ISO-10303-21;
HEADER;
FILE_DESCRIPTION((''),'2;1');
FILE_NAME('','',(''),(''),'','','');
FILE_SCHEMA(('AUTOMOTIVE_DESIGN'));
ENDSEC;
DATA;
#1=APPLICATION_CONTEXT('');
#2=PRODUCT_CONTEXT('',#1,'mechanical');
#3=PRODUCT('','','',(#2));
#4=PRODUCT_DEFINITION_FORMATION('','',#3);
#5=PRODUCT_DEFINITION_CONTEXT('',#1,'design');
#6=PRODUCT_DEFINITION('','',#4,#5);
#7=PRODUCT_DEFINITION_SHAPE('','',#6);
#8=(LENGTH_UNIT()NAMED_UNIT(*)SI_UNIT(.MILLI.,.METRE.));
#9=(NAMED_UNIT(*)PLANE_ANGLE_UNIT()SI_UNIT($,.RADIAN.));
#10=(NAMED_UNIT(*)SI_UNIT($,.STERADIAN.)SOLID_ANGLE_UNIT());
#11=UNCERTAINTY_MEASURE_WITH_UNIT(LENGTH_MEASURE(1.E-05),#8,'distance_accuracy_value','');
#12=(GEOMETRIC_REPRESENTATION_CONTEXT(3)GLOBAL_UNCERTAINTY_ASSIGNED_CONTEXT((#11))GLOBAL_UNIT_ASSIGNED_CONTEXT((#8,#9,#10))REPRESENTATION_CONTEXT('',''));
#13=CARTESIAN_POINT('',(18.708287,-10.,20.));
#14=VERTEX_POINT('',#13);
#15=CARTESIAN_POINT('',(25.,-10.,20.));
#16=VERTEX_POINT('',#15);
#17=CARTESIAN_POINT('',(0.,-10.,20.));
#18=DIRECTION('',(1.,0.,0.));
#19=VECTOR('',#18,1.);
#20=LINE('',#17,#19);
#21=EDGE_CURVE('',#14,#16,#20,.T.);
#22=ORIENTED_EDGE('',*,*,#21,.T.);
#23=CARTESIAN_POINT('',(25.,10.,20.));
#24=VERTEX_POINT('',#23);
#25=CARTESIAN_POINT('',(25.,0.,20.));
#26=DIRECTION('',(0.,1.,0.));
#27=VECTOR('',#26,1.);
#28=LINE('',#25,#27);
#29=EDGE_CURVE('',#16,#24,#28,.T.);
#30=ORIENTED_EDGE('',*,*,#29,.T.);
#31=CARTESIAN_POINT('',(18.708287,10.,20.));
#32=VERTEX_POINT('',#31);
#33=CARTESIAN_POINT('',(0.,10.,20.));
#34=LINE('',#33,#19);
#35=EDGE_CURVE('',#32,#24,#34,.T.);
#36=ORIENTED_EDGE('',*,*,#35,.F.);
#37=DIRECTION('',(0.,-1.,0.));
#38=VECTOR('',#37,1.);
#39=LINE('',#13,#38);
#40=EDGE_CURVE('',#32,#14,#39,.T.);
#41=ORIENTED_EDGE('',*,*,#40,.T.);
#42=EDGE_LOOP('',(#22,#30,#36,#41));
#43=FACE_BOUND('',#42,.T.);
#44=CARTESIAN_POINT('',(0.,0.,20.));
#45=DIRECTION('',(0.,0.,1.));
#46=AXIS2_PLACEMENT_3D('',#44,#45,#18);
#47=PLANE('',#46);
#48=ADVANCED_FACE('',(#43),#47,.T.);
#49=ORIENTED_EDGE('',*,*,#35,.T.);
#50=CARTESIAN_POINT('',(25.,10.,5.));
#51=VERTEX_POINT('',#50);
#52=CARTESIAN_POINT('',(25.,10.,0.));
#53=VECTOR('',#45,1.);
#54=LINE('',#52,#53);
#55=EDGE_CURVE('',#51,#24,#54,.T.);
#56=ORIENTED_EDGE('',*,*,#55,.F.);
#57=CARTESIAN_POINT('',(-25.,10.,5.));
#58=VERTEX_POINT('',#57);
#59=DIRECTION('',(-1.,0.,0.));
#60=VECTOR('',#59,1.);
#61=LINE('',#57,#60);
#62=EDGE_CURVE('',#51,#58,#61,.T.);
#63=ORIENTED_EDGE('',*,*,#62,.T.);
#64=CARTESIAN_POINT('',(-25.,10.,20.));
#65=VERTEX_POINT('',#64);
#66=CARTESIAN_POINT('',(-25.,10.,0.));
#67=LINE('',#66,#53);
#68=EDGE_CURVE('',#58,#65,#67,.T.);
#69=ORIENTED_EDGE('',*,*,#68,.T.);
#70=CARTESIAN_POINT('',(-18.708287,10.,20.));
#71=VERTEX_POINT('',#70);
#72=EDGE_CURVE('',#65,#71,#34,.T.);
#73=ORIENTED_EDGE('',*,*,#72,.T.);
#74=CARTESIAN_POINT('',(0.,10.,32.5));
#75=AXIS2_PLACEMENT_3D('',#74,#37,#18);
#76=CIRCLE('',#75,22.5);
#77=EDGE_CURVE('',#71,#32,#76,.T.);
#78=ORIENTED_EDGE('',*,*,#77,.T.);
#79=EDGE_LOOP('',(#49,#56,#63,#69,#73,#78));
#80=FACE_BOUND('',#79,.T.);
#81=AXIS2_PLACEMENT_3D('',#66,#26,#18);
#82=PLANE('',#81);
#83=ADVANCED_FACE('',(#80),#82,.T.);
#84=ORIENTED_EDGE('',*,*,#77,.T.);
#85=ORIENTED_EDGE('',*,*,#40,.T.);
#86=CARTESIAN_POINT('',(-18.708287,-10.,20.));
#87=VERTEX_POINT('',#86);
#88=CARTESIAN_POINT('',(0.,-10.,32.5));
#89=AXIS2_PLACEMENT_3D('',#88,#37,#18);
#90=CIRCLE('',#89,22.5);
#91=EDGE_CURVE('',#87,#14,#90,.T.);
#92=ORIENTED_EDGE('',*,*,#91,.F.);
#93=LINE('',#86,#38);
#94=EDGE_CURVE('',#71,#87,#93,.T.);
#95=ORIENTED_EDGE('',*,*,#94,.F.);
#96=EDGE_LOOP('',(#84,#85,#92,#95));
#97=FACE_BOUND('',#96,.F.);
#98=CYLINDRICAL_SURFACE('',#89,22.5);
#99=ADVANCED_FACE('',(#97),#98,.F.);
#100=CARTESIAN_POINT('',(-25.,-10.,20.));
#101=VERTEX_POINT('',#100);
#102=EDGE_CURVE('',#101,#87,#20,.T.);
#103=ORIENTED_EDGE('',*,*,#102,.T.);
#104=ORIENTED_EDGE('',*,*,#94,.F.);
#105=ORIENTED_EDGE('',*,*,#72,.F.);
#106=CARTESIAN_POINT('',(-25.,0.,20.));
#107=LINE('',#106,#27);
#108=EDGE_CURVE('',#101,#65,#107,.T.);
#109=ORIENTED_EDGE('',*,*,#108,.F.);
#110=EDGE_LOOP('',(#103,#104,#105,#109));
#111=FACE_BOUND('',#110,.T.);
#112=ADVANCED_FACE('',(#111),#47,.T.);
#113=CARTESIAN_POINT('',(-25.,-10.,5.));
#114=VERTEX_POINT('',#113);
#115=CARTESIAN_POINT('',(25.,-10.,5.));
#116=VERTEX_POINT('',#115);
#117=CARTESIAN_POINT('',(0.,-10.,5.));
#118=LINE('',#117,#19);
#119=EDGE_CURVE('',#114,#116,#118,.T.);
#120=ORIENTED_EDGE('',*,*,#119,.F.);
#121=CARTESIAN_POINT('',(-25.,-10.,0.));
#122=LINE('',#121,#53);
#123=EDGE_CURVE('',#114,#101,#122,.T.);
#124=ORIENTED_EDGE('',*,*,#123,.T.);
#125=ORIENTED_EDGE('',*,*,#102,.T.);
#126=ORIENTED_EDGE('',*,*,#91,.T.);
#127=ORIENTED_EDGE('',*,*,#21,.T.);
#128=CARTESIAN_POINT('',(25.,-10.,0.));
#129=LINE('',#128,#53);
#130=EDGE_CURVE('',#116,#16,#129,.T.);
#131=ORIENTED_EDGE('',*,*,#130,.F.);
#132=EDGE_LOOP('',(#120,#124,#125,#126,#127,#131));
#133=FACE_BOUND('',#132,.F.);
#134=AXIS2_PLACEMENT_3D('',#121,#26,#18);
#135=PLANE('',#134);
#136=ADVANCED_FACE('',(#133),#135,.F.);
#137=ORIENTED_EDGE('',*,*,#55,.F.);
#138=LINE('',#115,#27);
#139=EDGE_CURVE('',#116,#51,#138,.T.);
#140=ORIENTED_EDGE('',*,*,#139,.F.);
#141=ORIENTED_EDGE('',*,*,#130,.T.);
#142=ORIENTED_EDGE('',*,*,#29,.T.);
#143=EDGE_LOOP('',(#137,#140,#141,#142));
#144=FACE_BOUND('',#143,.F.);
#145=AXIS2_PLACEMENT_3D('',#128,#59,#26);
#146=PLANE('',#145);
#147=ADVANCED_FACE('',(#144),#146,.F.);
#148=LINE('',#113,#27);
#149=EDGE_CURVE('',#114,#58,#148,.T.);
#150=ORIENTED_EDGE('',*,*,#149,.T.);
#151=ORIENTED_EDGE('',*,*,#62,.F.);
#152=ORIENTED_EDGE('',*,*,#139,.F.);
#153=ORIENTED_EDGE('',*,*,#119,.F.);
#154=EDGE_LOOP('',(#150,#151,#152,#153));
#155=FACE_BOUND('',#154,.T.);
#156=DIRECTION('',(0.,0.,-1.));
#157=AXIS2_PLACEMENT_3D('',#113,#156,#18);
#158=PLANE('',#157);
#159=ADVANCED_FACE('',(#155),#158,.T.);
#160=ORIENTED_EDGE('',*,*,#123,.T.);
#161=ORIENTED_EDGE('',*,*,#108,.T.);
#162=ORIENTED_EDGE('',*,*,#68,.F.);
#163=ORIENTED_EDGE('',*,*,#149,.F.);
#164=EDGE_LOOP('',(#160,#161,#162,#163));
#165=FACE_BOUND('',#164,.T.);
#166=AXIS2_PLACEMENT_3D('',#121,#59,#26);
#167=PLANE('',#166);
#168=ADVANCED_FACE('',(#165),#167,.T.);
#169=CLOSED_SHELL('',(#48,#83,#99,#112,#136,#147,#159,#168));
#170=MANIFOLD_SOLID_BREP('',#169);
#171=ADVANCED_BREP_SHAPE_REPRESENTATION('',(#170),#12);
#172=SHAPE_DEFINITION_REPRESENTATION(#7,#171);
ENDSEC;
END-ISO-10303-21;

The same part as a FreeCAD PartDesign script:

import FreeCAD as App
import Part
import Sketcher
Q = App.Units.Quantity

doc = App.newDocument("Part")
body = doc.addObject("PartDesign::Body", "Body")

sketch1 = body.newObject("Sketcher::SketchObject", "Sketch")
sketch1.AttachmentSupport = (doc.getObject("XY_Plane"), [""])
sketch1.MapMode = "FlatFace"
sketch1.addGeometry([
    Part.LineSegment(App.Vector(-25, 10, 0), App.Vector(-25, -10, 0)),
    Part.LineSegment(App.Vector(-25, -10, 0), App.Vector(25, -10, 0)),
    Part.LineSegment(App.Vector(25, -10, 0), App.Vector(25, 10, 0)),
    Part.LineSegment(App.Vector(25, 10, 0), App.Vector(-25, 10, 0)),
], False)
sketch1.addConstraint([
    Sketcher.Constraint("Coincident", 0, 2, 1, 1),
    Sketcher.Constraint("Coincident", 1, 2, 2, 1),
    Sketcher.Constraint("Coincident", 2, 2, 3, 1),
    Sketcher.Constraint("Coincident", 3, 2, 0, 1),
    Sketcher.Constraint("Vertical", 0),
    Sketcher.Constraint("Horizontal", 1),
    Sketcher.Constraint("Vertical", 2),
    Sketcher.Constraint("Horizontal", 3),
    Sketcher.Constraint("Symmetric", 0, 2, 2, 2, -1, 1),
    Sketcher.Constraint("DistanceX", 1, 1, 1, 2, Q("50 mm")),
    Sketcher.Constraint("DistanceY", 0, 2, 0, 1, Q("20 mm")),
])
pad1 = body.newObject("PartDesign::Pad", "Pad")
pad1.Profile = sketch1
pad1.Length = 20

sketch2 = body.newObject("Sketcher::SketchObject", "Sketch001")
sketch2.AttachmentSupport = (doc.getObject("XZ_Plane"), [""])
sketch2.MapMode = "FlatFace"
sketch2.AttachmentOffset = App.Placement(App.Vector(0, 0, 10), App.Rotation())
sketch2.addGeometry(Part.Circle(App.Vector(0, 32, 0), App.Vector(0, 0, 1), 22), False)
sketch2.addConstraint([
    Sketcher.Constraint("PointOnObject", 0, 3, -2),
    Sketcher.Constraint("Diameter", 0, Q("45 mm")),
    Sketcher.Constraint("DistanceY", -1, 1, 0, 3, Q("32.5 mm")),
])
pocket1 = body.newObject("PartDesign::Pocket", "Pocket")
pocket1.Profile = sketch2
pocket1.Length = 25

sketch3 = body.newObject("Sketcher::SketchObject", "Sketch002")
sketch3.AttachmentSupport = (doc.getObject("XZ_Plane"), [""])
sketch3.MapMode = "FlatFace"
sketch3.AttachmentOffset = App.Placement(App.Vector(0, 0, 10), App.Rotation())
sketch3.addGeometry([
    Part.LineSegment(App.Vector(-25, 5, 0), App.Vector(-25, 0, 0)),
    Part.LineSegment(App.Vector(-25, 0, 0), App.Vector(25, 0, 0)),
    Part.LineSegment(App.Vector(25, 0, 0), App.Vector(25, 5, 0)),
    Part.LineSegment(App.Vector(25, 5, 0), App.Vector(-25, 5, 0)),
], False)
sketch3.addConstraint([
    Sketcher.Constraint("Coincident", 0, 2, 1, 1),
    Sketcher.Constraint("Coincident", 1, 2, 2, 1),
    Sketcher.Constraint("Coincident", 2, 2, 3, 1),
    Sketcher.Constraint("Coincident", 3, 2, 0, 1),
    Sketcher.Constraint("Vertical", 0),
    Sketcher.Constraint("Horizontal", 1),
    Sketcher.Constraint("Vertical", 2),
    Sketcher.Constraint("Horizontal", 3),
    Sketcher.Constraint("Symmetric", 0, 2, 1, 2, -1, 1),
    Sketcher.Constraint("DistanceX", 1, 1, 1, 2, Q("50 mm")),
    Sketcher.Constraint("DistanceY", 0, 2, 0, 1, Q("5 mm")),
])
pocket2 = body.newObject("PartDesign::Pocket", "Pocket001")
pocket2.Profile = sketch3
pocket2.Length = 25

doc.recompute()
